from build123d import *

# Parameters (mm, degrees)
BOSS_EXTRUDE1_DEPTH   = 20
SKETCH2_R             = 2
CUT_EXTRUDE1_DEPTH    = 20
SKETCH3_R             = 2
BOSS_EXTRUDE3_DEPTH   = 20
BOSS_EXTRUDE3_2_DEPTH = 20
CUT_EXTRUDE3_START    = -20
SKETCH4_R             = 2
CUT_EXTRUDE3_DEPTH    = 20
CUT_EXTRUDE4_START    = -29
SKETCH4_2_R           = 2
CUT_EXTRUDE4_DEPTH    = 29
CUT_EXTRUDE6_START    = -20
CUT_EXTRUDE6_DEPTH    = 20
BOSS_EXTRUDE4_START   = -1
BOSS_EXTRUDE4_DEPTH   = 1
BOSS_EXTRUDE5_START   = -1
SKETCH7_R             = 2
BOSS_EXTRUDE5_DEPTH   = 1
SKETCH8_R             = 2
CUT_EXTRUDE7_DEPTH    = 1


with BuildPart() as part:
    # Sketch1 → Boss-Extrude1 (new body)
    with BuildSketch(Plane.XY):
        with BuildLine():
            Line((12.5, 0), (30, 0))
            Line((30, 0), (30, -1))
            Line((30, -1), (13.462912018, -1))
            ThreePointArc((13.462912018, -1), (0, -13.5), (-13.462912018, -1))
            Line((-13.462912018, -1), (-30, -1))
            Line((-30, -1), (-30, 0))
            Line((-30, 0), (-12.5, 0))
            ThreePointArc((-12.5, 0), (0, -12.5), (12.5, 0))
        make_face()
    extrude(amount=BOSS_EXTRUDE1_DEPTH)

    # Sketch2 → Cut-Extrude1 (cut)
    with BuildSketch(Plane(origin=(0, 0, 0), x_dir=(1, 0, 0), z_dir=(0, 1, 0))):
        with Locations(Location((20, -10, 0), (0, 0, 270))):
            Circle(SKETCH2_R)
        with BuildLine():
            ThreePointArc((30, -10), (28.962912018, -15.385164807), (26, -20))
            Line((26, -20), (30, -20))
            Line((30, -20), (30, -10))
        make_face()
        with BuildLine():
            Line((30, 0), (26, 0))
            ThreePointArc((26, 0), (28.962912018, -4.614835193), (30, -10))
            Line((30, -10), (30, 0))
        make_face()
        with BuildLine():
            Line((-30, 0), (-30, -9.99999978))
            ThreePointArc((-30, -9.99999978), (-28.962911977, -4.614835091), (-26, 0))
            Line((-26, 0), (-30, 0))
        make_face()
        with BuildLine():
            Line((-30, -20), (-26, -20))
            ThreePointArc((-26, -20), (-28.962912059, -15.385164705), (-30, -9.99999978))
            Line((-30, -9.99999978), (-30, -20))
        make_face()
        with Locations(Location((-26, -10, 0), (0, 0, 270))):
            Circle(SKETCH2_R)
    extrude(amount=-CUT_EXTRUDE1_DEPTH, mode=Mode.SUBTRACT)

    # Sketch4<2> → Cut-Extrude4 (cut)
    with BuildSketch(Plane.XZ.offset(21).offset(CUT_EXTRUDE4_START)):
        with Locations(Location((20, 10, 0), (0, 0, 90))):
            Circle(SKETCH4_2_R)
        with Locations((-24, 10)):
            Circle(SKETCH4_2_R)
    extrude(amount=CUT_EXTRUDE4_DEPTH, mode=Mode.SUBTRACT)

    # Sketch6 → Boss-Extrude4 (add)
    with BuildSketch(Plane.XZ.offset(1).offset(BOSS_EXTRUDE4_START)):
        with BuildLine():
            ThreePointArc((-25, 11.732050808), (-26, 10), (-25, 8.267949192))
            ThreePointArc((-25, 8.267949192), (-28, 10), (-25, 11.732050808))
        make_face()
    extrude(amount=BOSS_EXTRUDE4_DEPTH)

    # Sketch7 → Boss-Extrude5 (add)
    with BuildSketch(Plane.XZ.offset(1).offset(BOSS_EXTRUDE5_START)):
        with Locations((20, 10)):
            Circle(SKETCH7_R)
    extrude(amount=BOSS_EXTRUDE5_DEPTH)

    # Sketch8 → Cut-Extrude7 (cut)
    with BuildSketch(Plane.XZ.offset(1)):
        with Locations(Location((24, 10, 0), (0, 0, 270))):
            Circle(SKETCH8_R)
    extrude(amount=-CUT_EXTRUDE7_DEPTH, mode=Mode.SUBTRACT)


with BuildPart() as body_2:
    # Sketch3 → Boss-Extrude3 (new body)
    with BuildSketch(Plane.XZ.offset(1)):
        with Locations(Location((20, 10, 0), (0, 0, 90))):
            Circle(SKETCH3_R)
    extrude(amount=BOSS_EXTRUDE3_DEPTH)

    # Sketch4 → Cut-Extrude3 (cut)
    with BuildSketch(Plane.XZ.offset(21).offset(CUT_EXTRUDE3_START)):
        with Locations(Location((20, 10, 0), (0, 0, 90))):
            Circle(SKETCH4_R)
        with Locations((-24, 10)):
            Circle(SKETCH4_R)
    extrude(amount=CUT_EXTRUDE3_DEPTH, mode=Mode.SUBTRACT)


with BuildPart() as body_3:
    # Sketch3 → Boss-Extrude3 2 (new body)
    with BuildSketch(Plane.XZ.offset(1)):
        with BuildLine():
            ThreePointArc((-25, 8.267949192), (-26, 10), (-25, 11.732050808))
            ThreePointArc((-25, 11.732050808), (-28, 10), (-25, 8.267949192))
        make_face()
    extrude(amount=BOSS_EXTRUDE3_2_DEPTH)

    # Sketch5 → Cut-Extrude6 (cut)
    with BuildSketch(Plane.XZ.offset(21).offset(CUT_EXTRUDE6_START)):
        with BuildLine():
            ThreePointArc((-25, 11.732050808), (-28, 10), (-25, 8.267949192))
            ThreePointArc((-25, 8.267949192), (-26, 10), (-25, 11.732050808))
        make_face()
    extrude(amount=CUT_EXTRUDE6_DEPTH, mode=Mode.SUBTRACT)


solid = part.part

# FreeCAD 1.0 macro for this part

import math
import FreeCAD as App
import Part
import Sketcher
from FreeCAD import Vector
Q = App.Units.Quantity

doc = App.newDocument("Part")
body = doc.addObject("PartDesign::Body", "Body")

sketch1 = doc.addObject("Sketcher::SketchObject", "Sketch")
body.addObject(sketch1)
sketch1.AttachmentSupport = (doc.XY_Plane, [""])
sketch1.MapMode = "FlatFace"
sketch1.addGeometry(Part.LineSegment(Vector(30, 0, 0), Vector(12.5, 0, 0)), False)
sketch1.addGeometry(Part.ArcOfCircle(Part.Circle(Vector(0, 0, 0), Vector(0, 0, 1), 12.5), math.radians(180), math.radians(360)), False)
sketch1.addGeometry(Part.LineSegment(Vector(-12.5, 0, 0), Vector(-30, 0, 0)), False)
sketch1.addGeometry(Part.LineSegment(Vector(-30, 0, 0), Vector(-30, -1, 0)), False)
sketch1.addGeometry(Part.LineSegment(Vector(-30, -1, 0), Vector(-13.462912, -1, 0)), False)
sketch1.addGeometry(Part.ArcOfCircle(Part.Circle(Vector(0, 0, 0), Vector(0, 0, 1), 13.5), math.radians(-175.751977), math.radians(-4.248023)), False)
sketch1.addGeometry(Part.LineSegment(Vector(13.462912, -1, 0), Vector(30, -1, 0)), False)
sketch1.addGeometry(Part.LineSegment(Vector(30, -1, 0), Vector(30, 0, 0)), False)
sketch1.addConstraint(Sketcher.Constraint("Coincident", 0, 2, 1, 2))
sketch1.addConstraint(Sketcher.Constraint("Coincident", 1, 1, 2, 1))
sketch1.addConstraint(Sketcher.Constraint("Coincident", 2, 2, 3, 1))
sketch1.addConstraint(Sketcher.Constraint("Coincident", 3, 2, 4, 1))
sketch1.addConstraint(Sketcher.Constraint("Coincident", 4, 2, 5, 1))
sketch1.addConstraint(Sketcher.Constraint("Coincident", 5, 2, 6, 1))
sketch1.addConstraint(Sketcher.Constraint("Coincident", 6, 2, 7, 1))
sketch1.addConstraint(Sketcher.Constraint("Coincident", 7, 2, 0, 1))
sketch1.addConstraint(Sketcher.Constraint("Horizontal", 0))
sketch1.addConstraint(Sketcher.Constraint("Horizontal", 2))
sketch1.addConstraint(Sketcher.Constraint("Vertical", 3))
sketch1.addConstraint(Sketcher.Constraint("Horizontal", 4))
sketch1.addConstraint(Sketcher.Constraint("Horizontal", 6))
sketch1.addConstraint(Sketcher.Constraint("Vertical", 7))
sketch1.addConstraint(Sketcher.Constraint("Coincident", 1, 3, -1, 1))
sketch1.addConstraint(Sketcher.Constraint("Coincident", 5, 3, -1, 1))
sketch1.addConstraint(Sketcher.Constraint("Symmetric", 2, 2, 7, 2, -1, 1))
sketch1.addConstraint(Sketcher.Constraint("PointOnObject", 0, 2, -1))
sketch1.addConstraint(Sketcher.Constraint("Horizontal", 4, 2, 5, 2))
sketch1.addConstraint(Sketcher.Constraint("Radius", 1, Q("12.5 mm")))
sketch1.addConstraint(Sketcher.Constraint("Radius", 5, Q("13.5 mm")))
sketch1.addConstraint(Sketcher.Constraint("DistanceY", 3, 2, 3, 1, Q("1 mm")))
sketch1.addConstraint(Sketcher.Constraint("DistanceX", 0, 2, 0, 1, Q("17.5 mm")))
pad1 = doc.addObject("PartDesign::Pad", "Pad")
body.addObject(pad1)
pad1.Profile = sketch1
pad1.Length = 20

sketch2 = doc.addObject("Sketcher::SketchObject", "Sketch001")
body.addObject(sketch2)
sketch2.AttachmentSupport = (doc.XZ_Plane, [""])
sketch2.MapMode = "FlatFace"
sketch2.addGeometry(Part.Circle(Vector(20, 10, 0), Vector(0, 0, 1), 2), False)
sketch2.addGeometry(Part.ArcOfCircle(Part.Circle(Vector(15.5, 10, 0), Vector(0, 0, 1), 14.5), math.radians(0), math.radians(43.602819)), False)
sketch2.addGeometry(Part.LineSegment(Vector(26, 20, 0), Vector(30, 20, 0)), False)
sketch2.addGeometry(Part.LineSegment(Vector(30, 20, 0), Vector(30, 10, 0)), False)
sketch2.addGeometry(Part.LineSegment(Vector(30, 0, 0), Vector(26, 0, 0)), False)
sketch2.addGeometry(Part.ArcOfCircle(Part.Circle(Vector(15.5, 10, 0), Vector(0, 0, 1), 14.5), math.radians(-43.602819), math.radians(0)), False)
sketch2.addGeometry(Part.LineSegment(Vector(30, 10, 0), Vector(30, 0, 0)), False)
sketch2.addGeometry(Part.LineSegment(Vector(-30, 0, 0), Vector(-30, 10, 0)), False)
sketch2.addGeometry(Part.ArcOfCircle(Part.Circle(Vector(-15.5, 10, 0), Vector(0, 0, 1), 14.5), math.radians(-179.999999), math.radians(-136.397181)), False)
sketch2.addGeometry(Part.LineSegment(Vector(-26, 0, 0), Vector(-30, 0, 0)), False)
sketch2.addGeometry(Part.LineSegment(Vector(-30, 20, 0), Vector(-26, 20, 0)), False)
sketch2.addGeometry(Part.ArcOfCircle(Part.Circle(Vector(-15.5, 10, 0), Vector(0, 0, 1), 14.5), math.radians(136.397181), math.radians(180.000001)), False)
sketch2.addGeometry(Part.LineSegment(Vector(-30, 10, 0), Vector(-30, 20, 0)), False)
sketch2.addGeometry(Part.Circle(Vector(-26, 10, 0), Vector(0, 0, 1), 2), False)
sketch2.addConstraint(Sketcher.Constraint("Coincident", 1, 2, 2, 1))
sketch2.addConstraint(Sketcher.Constraint("Coincident", 2, 2, 3, 1))
sketch2.addConstraint(Sketcher.Constraint("Tangent", 3, 2, 1, 1))
sketch2.addConstraint(Sketcher.Constraint("Coincident", 4, 2, 5, 1))
sketch2.addConstraint(Sketcher.Constraint("Tangent", 5, 2, 6, 1))
sketch2.addConstraint(Sketcher.Constraint("Coincident", 6, 2, 4, 1))
sketch2.addConstraint(Sketcher.Constraint("Tangent", 7, 2, 8, 1))
sketch2.addConstraint(Sketcher.Constraint("Coincident", 8, 2, 9, 1))
sketch2.addConstraint(Sketcher.Constraint("Coincident", 9, 2, 7, 1))
sketch2.addConstraint(Sketcher.Constraint("Coincident", 10, 2, 11, 1))
sketch2.addConstraint(Sketcher.Constraint("Tangent", 11, 2, 12, 1))
sketch2.addConstraint(Sketcher.Constraint("Coincident", 12, 2, 10, 1))
sketch2.addConstraint(Sketcher.Constraint("Horizontal", 2))
sketch2.addConstraint(Sketcher.Constraint("Vertical", 3))
sketch2.addConstraint(Sketcher.Constraint("Horizontal", 4))
sketch2.addConstraint(Sketcher.Constraint("Vertical", 6))
sketch2.addConstraint(Sketcher.Constraint("Vertical", 7))
sketch2.addConstraint(Sketcher.Constraint("Horizontal", 9))
sketch2.addConstraint(Sketcher.Constraint("Horizontal", 10))
sketch2.addConstraint(Sketcher.Constraint("Vertical", 12))
sketch2.addConstraint(Sketcher.Constraint("Coincident", 5, 3, 1, 3))
sketch2.addConstraint(Sketcher.Constraint("Coincident", 11, 3, 8, 3))
sketch2.addConstraint(Sketcher.Constraint("Equal", 1, 5))
sketch2.addConstraint(Sketcher.Constraint("Equal", 5, 8))
sketch2.addConstraint(Sketcher.Constraint("Equal", 8, 11))
sketch2.addConstraint(Sketcher.Constraint("Equal", 0, 13))
sketch2.addConstraint(Sketcher.Constraint("Symmetric", 4, 2, 8, 2, -1, 1))
sketch2.addConstraint(Sketcher.Constraint("Symmetric", 1, 3, 8, 3, -2))
sketch2.addConstraint(Sketcher.Constraint("Horizontal", 0, 3, 1, 3))
sketch2.addConstraint(Sketcher.Constraint("Horizontal", 11, 3, 13, 3))
sketch2.addConstraint(Sketcher.Constraint("Horizontal", 2, 2, 10, 2))
sketch2.addConstraint(Sketcher.Constraint("Vertical", 1, 2, 4, 2))
sketch2.addConstraint(Sketcher.Constraint("Vertical", 13, 3, 8, 2))
sketch2.addConstraint(Sketcher.Constraint("Diameter", 0, Q("4 mm")))
sketch2.addConstraint(Sketcher.Constraint("Radius", 1, Q("14.5 mm")))
sketch2.addConstraint(Sketcher.Constraint("DistanceX", 2, 1, 2, 2, Q("4 mm")))
sketch2.addConstraint(Sketcher.Constraint("DistanceX", -1, 1, 0, 3, Q("20 mm")))
sketch2.addConstraint(Sketcher.Constraint("DistanceX", 13, 3, -1, 1, Q("26 mm")))
pocket1 = doc.addObject("PartDesign::Pocket", "Pocket")
body.addObject(pocket1)
pocket1.Profile = sketch2
pocket1.Length = 20
pocket1.Reversed = True

sketch3 = doc.addObject("Sketcher::SketchObject", "Sketch002")
body.addObject(sketch3)
sketch3.AttachmentSupport = (doc.XZ_Plane, [""])
sketch3.MapMode = "FlatFace"
sketch3.AttachmentOffset = App.Placement(Vector(0, 0, -8), App.Rotation())
sketch3.addGeometry(Part.Circle(Vector(20, 10, 0), Vector(0, 0, 1), 2), False)
sketch3.addGeometry(Part.Circle(Vector(-24, 10, 0), Vector(0, 0, 1), 2), False)
sketch3.addConstraint(Sketcher.Constraint("Equal", 0, 1))
sketch3.addConstraint(Sketcher.Constraint("Horizontal", 0, 3, 1, 3))
sketch3.addConstraint(Sketcher.Constraint("Diameter", 0, Q("4 mm")))
sketch3.addConstraint(Sketcher.Constraint("DistanceX", -1, 1, 0, 3, Q("20 mm")))
sketch3.addConstraint(Sketcher.Constraint("DistanceY", -1, 1, 0, 3, Q("10 mm")))
sketch3.addConstraint(Sketcher.Constraint("DistanceX", 1, 3, -1, 1, Q("24 mm")))
pocket2 = doc.addObject("PartDesign::Pocket", "Pocket001")
body.addObject(pocket2)
pocket2.Profile = sketch3
pocket2.Length = 29
pocket2.Reversed = True

sketch4 = doc.addObject("Sketcher::SketchObject", "Sketch003")
body.addObject(sketch4)
sketch4.AttachmentSupport = (doc.XZ_Plane, [""])
sketch4.MapMode = "FlatFace"
sketch4.addGeometry(Part.ArcOfCircle(Part.Circle(Vector(-24, 10, 0), Vector(0, 0, 1), 2), math.radians(120), math.radians(240)), False)
sketch4.addGeometry(Part.ArcOfCircle(Part.Circle(Vector(-26, 10, 0), Vector(0, 0, 1), 2), math.radians(60), math.radians(300)), False)
sketch4.addConstraint(Sketcher.Constraint("Coincident", 0, 1, 1, 1))
sketch4.addConstraint(Sketcher.Constraint("Coincident", 1, 2, 0, 2))
sketch4.addConstraint(Sketcher.Constraint("Equal", 0, 1))
sketch4.addConstraint(Sketcher.Constraint("Horizontal", 0, 3, 1, 3))
sketch4.addConstraint(Sketcher.Constraint("Radius", 0, Q("2 mm")))
sketch4.addConstraint(Sketcher.Constraint("DistanceX", 0, 3, -1, 1, Q("24 mm")))
sketch4.addConstraint(Sketcher.Constraint("DistanceY", -1, 1, 0, 3, Q("10 mm")))
sketch4.addConstraint(Sketcher.Constraint("DistanceX", 1, 3, -1, 1, Q("26 mm")))
pad2 = doc.addObject("PartDesign::Pad", "Pad001")
body.addObject(pad2)
pad2.Profile = sketch4
pad2.Length = 1

sketch5 = doc.addObject("Sketcher::SketchObject", "Sketch004")
body.addObject(sketch5)
sketch5.AttachmentSupport = (doc.XZ_Plane, [""])
sketch5.MapMode = "FlatFace"
sketch5.addGeometry(Part.Circle(Vector(20, 10, 0), Vector(0, 0, 1), 2), False)
sketch5.addConstraint(Sketcher.Constraint("Diameter", 0, Q("4 mm")))
sketch5.addConstraint(Sketcher.Constraint("DistanceX", -1, 1, 0, 3, Q("20 mm")))
sketch5.addConstraint(Sketcher.Constraint("DistanceY", -1, 1, 0, 3, Q("10 mm")))
pad3 = doc.addObject("PartDesign::Pad", "Pad002")
body.addObject(pad3)
pad3.Profile = sketch5
pad3.Length = 1

sketch6 = doc.addObject("Sketcher::SketchObject", "Sketch005")
body.addObject(sketch6)
sketch6.AttachmentSupport = (doc.XZ_Plane, [""])
sketch6.MapMode = "FlatFace"
sketch6.AttachmentOffset = App.Placement(Vector(0, 0, 1), App.Rotation())
sketch6.addGeometry(Part.Circle(Vector(24, 10, 0), Vector(0, 0, 1), 2), False)
sketch6.addConstraint(Sketcher.Constraint("Diameter", 0, Q("4 mm")))
sketch6.addConstraint(Sketcher.Constraint("DistanceX", -1, 1, 0, 3, Q("24 mm")))
sketch6.addConstraint(Sketcher.Constraint("DistanceY", -1, 1, 0, 3, Q("10 mm")))
pocket3 = doc.addObject("PartDesign::Pocket", "Pocket002")
body.addObject(pocket3)
pocket3.Profile = sketch6
pocket3.Length = 1
body2 = doc.addObject("PartDesign::Body", "Body001")

sketch7 = doc.addObject("Sketcher::SketchObject", "Sketch006")
body2.addObject(sketch7)
sketch7.AttachmentSupport = (doc.getObject("XZ_Plane001"), [""])
sketch7.MapMode = "FlatFace"
sketch7.AttachmentOffset = App.Placement(Vector(0, 0, 1), App.Rotation())
sketch7.addGeometry(Part.Circle(Vector(20, 10, 0), Vector(0, 0, 1), 2), False)
sketch7.addConstraint(Sketcher.Constraint("Diameter", 0, Q("4 mm")))
sketch7.addConstraint(Sketcher.Constraint("DistanceX", -1, 1, 0, 3, Q("20 mm")))
sketch7.addConstraint(Sketcher.Constraint("DistanceY", -1, 1, 0, 3, Q("10 mm")))
pad4 = doc.addObject("PartDesign::Pad", "Pad003")
body2.addObject(pad4)
pad4.Profile = sketch7
pad4.Length = 20

sketch8 = doc.addObject("Sketcher::SketchObject", "Sketch007")
body2.addObject(sketch8)
sketch8.AttachmentSupport = (doc.getObject("XZ_Plane001"), [""])
sketch8.MapMode = "FlatFace"
sketch8.AttachmentOffset = App.Placement(Vector(0, 0, 1), App.Rotation())
sketch8.addGeometry(Part.Circle(Vector(20, 10, 0), Vector(0, 0, 1), 2), False)
sketch8.addGeometry(Part.Circle(Vector(-24, 10, 0), Vector(0, 0, 1), 2), False)
sketch8.addConstraint(Sketcher.Constraint("Equal", 0, 1))
sketch8.addConstraint(Sketcher.Constraint("Horizontal", 0, 3, 1, 3))
sketch8.addConstraint(Sketcher.Constraint("Diameter", 0, Q("4 mm")))
sketch8.addConstraint(Sketcher.Constraint("DistanceX", -1, 1, 0, 3, Q("20 mm")))
sketch8.addConstraint(Sketcher.Constraint("DistanceY", -1, 1, 0, 3, Q("10 mm")))
sketch8.addConstraint(Sketcher.Constraint("DistanceX", 1, 3, -1, 1, Q("24 mm")))
pocket4 = doc.addObject("PartDesign::Pocket", "Pocket003")
body2.addObject(pocket4)
pocket4.Profile = sketch8
pocket4.Length = 20
pocket4.Reversed = True
body3 = doc.addObject("PartDesign::Body", "Body002")

sketch9 = doc.addObject("Sketcher::SketchObject", "Sketch008")
body3.addObject(sketch9)
sketch9.AttachmentSupport = (doc.getObject("XZ_Plane002"), [""])
sketch9.MapMode = "FlatFace"
sketch9.AttachmentOffset = App.Placement(Vector(0, 0, 1), App.Rotation())
sketch9.addGeometry(Part.ArcOfCircle(Part.Circle(Vector(-24, 10, 0), Vector(0, 0, 1), 2), math.radians(120), math.radians(240)), False)
sketch9.addGeometry(Part.ArcOfCircle(Part.Circle(Vector(-26, 10, 0), Vector(0, 0, 1), 2), math.radians(60), math.radians(300)), False)
sketch9.addConstraint(Sketcher.Constraint("Coincident", 0, 1, 1, 1))
sketch9.addConstraint(Sketcher.Constraint("Coincident", 1, 2, 0, 2))
sketch9.addConstraint(Sketcher.Constraint("Equal", 0, 1))
sketch9.addConstraint(Sketcher.Constraint("Horizontal", 0, 3, 1, 3))
sketch9.addConstraint(Sketcher.Constraint("Radius", 0, Q("2 mm")))
sketch9.addConstraint(Sketcher.Constraint("DistanceX", 0, 3, -1, 1, Q("24 mm")))
sketch9.addConstraint(Sketcher.Constraint("DistanceY", -1, 1, 0, 3, Q("10 mm")))
sketch9.addConstraint(Sketcher.Constraint("DistanceX", 1, 3, -1, 1, Q("26 mm")))
pad5 = doc.addObject("PartDesign::Pad", "Pad004")
body3.addObject(pad5)
pad5.Profile = sketch9
pad5.Length = 20

sketch10 = doc.addObject("Sketcher::SketchObject", "Sketch009")
body3.addObject(sketch10)
sketch10.AttachmentSupport = (doc.getObject("XZ_Plane002"), [""])
sketch10.MapMode = "FlatFace"
sketch10.AttachmentOffset = App.Placement(Vector(0, 0, 1), App.Rotation())
sketch10.addGeometry(Part.ArcOfCircle(Part.Circle(Vector(-26, 10, 0), Vector(0, 0, 1), 2), math.radians(60), math.radians(300)), False)
sketch10.addGeometry(Part.ArcOfCircle(Part.Circle(Vector(-24, 10, 0), Vector(0, 0, 1), 2), math.radians(120), math.radians(240)), False)
sketch10.addConstraint(Sketcher.Constraint("Coincident", 0, 1, 1, 1))
sketch10.addConstraint(Sketcher.Constraint("Coincident", 1, 2, 0, 2))
sketch10.addConstraint(Sketcher.Constraint("Equal", 0, 1))
sketch10.addConstraint(Sketcher.Constraint("Horizontal", 0, 3, 1, 3))
sketch10.addConstraint(Sketcher.Constraint("Radius", 0, Q("2 mm")))
sketch10.addConstraint(Sketcher.Constraint("DistanceX", 0, 3, -1, 1, Q("26 mm")))
sketch10.addConstraint(Sketcher.Constraint("DistanceY", -1, 1, 0, 3, Q("10 mm")))
sketch10.addConstraint(Sketcher.Constraint("DistanceX", 1, 3, -1, 1, Q("24 mm")))
pocket5 = doc.addObject("PartDesign::Pocket", "Pocket004")
body3.addObject(pocket5)
pocket5.Profile = sketch10
pocket5.Length = 20
pocket5.Reversed = True

doc.recompute()
